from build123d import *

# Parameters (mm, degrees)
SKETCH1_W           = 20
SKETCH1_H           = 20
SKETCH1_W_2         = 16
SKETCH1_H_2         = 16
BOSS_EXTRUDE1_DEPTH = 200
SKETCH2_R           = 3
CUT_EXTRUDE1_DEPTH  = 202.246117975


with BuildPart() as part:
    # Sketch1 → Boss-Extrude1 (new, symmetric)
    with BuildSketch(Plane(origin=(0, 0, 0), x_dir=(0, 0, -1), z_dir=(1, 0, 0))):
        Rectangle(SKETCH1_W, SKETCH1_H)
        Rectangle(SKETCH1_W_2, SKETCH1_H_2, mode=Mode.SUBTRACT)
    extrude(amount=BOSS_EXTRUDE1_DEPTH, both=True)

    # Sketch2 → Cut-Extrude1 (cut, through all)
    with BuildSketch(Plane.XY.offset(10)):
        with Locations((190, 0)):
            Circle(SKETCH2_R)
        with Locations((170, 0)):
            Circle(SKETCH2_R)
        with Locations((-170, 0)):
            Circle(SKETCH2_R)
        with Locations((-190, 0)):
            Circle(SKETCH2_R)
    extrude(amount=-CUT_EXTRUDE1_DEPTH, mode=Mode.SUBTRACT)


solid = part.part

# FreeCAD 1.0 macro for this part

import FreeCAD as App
import Part
import Sketcher
from FreeCAD import Vector


def add_polygon(sketch, points):
    """Adds a closed chain of lines whose ends are joined by coincident constraints."""
    first, n = sketch.GeometryCount, len(points)
    for a, b in zip(points, points[1:] + points[:1]):
        sketch.addGeometry(Part.LineSegment(App.Vector(*a, 0), App.Vector(*b, 0)), False)
    for i in range(n):
        sketch.addConstraint(Sketcher.Constraint("Coincident", first + i, 2, first + (i + 1) % n, 1))

doc = App.newDocument("Part")
body = doc.addObject("PartDesign::Body", "Body")

# Sketch on YZ plane
sketch1 = doc.addObject("Sketcher::SketchObject", "Sketch")
body.addObject(sketch1)
sketch1.AttachmentSupport = (doc.YZ_Plane, [""])
sketch1.MapMode = "FlatFace"
add_polygon(sketch1, [(10, 10), (-10, 10), (-10, -10), (10, -10)])  # lines 0-3
add_polygon(sketch1, [(-8, -8), (-8, 8), (8, 8), (8, -8)])  # lines 4-7
sketch1.addConstraint(Sketcher.Constraint("Horizontal", 0))
sketch1.addConstraint(Sketcher.Constraint("Vertical", 1))
sketch1.addConstraint(Sketcher.Constraint("Horizontal", 2))
sketch1.addConstraint(Sketcher.Constraint("Vertical", 3))
sketch1.addConstraint(Sketcher.Constraint("Vertical", 4))
sketch1.addConstraint(Sketcher.Constraint("Horizontal", 5))
sketch1.addConstraint(Sketcher.Constraint("Vertical", 6))
sketch1.addConstraint(Sketcher.Constraint("Horizontal", 7))
sketch1.addConstraint(Sketcher.Constraint("Symmetric", 0, 2, 2, 2, -1, 1))
sketch1.addConstraint(Sketcher.Constraint("Symmetric", 4, 2, 6, 2, -1, 1))
sketch1.addConstraint(Sketcher.Constraint("Equal", 2, 1))
sketch1.addConstraint(Sketcher.Constraint("Equal", 7, 4))
sketch1.addConstraint(Sketcher.Constraint("DistanceX", 0, 2, 0, 1, 20.0))
sketch1.addConstraint(Sketcher.Constraint("DistanceX", 5, 1, 5, 2, 16.0))
pad1 = doc.addObject("PartDesign::Pad", "Pad")
body.addObject(pad1)
pad1.Profile = sketch1
pad1.Length = 400
pad1.Midplane = True

# Sketch on XY plane
sketch2 = doc.addObject("Sketcher::SketchObject", "Sketch001")
body.addObject(sketch2)
sketch2.AttachmentSupport = (doc.XY_Plane, [""])
sketch2.MapMode = "FlatFace"
sketch2.AttachmentOffset = App.Placement(Vector(0, 0, 10), App.Rotation())
sketch2.addGeometry(Part.Circle(Vector(190, 0, 0), Vector(0, 0, 1), 3), False)
sketch2.addGeometry(Part.Circle(Vector(170, 0, 0), Vector(0, 0, 1), 3), False)
sketch2.addGeometry(Part.Circle(Vector(-170, 0, 0), Vector(0, 0, 1), 3), False)
sketch2.addGeometry(Part.Circle(Vector(-190, 0, 0), Vector(0, 0, 1), 3), False)
sketch2.addConstraint(Sketcher.Constraint("Equal", 0, 1))
sketch2.addConstraint(Sketcher.Constraint("Equal", 1, 2))
sketch2.addConstraint(Sketcher.Constraint("Equal", 2, 3))
sketch2.addConstraint(Sketcher.Constraint("Symmetric", 1, 3, 2, 3, -1, 1))
sketch2.addConstraint(Sketcher.Constraint("Symmetric", 0, 3, 3, 3, -1, 1))
sketch2.addConstraint(Sketcher.Constraint("PointOnObject", 0, 3, -1))
sketch2.addConstraint(Sketcher.Constraint("PointOnObject", 1, 3, -1))
sketch2.addConstraint(Sketcher.Constraint("Diameter", 0, 6.0))
sketch2.addConstraint(Sketcher.Constraint("DistanceX", -1, 1, 0, 3, 190.0))
sketch2.addConstraint(Sketcher.Constraint("DistanceX", -1, 1, 1, 3, 170.0))
pocket1 = doc.addObject("PartDesign::Pocket", "Pocket")
body.addObject(pocket1)
pocket1.Profile = sketch2
pocket1.Type = "ThroughAll"

doc.recompute()
